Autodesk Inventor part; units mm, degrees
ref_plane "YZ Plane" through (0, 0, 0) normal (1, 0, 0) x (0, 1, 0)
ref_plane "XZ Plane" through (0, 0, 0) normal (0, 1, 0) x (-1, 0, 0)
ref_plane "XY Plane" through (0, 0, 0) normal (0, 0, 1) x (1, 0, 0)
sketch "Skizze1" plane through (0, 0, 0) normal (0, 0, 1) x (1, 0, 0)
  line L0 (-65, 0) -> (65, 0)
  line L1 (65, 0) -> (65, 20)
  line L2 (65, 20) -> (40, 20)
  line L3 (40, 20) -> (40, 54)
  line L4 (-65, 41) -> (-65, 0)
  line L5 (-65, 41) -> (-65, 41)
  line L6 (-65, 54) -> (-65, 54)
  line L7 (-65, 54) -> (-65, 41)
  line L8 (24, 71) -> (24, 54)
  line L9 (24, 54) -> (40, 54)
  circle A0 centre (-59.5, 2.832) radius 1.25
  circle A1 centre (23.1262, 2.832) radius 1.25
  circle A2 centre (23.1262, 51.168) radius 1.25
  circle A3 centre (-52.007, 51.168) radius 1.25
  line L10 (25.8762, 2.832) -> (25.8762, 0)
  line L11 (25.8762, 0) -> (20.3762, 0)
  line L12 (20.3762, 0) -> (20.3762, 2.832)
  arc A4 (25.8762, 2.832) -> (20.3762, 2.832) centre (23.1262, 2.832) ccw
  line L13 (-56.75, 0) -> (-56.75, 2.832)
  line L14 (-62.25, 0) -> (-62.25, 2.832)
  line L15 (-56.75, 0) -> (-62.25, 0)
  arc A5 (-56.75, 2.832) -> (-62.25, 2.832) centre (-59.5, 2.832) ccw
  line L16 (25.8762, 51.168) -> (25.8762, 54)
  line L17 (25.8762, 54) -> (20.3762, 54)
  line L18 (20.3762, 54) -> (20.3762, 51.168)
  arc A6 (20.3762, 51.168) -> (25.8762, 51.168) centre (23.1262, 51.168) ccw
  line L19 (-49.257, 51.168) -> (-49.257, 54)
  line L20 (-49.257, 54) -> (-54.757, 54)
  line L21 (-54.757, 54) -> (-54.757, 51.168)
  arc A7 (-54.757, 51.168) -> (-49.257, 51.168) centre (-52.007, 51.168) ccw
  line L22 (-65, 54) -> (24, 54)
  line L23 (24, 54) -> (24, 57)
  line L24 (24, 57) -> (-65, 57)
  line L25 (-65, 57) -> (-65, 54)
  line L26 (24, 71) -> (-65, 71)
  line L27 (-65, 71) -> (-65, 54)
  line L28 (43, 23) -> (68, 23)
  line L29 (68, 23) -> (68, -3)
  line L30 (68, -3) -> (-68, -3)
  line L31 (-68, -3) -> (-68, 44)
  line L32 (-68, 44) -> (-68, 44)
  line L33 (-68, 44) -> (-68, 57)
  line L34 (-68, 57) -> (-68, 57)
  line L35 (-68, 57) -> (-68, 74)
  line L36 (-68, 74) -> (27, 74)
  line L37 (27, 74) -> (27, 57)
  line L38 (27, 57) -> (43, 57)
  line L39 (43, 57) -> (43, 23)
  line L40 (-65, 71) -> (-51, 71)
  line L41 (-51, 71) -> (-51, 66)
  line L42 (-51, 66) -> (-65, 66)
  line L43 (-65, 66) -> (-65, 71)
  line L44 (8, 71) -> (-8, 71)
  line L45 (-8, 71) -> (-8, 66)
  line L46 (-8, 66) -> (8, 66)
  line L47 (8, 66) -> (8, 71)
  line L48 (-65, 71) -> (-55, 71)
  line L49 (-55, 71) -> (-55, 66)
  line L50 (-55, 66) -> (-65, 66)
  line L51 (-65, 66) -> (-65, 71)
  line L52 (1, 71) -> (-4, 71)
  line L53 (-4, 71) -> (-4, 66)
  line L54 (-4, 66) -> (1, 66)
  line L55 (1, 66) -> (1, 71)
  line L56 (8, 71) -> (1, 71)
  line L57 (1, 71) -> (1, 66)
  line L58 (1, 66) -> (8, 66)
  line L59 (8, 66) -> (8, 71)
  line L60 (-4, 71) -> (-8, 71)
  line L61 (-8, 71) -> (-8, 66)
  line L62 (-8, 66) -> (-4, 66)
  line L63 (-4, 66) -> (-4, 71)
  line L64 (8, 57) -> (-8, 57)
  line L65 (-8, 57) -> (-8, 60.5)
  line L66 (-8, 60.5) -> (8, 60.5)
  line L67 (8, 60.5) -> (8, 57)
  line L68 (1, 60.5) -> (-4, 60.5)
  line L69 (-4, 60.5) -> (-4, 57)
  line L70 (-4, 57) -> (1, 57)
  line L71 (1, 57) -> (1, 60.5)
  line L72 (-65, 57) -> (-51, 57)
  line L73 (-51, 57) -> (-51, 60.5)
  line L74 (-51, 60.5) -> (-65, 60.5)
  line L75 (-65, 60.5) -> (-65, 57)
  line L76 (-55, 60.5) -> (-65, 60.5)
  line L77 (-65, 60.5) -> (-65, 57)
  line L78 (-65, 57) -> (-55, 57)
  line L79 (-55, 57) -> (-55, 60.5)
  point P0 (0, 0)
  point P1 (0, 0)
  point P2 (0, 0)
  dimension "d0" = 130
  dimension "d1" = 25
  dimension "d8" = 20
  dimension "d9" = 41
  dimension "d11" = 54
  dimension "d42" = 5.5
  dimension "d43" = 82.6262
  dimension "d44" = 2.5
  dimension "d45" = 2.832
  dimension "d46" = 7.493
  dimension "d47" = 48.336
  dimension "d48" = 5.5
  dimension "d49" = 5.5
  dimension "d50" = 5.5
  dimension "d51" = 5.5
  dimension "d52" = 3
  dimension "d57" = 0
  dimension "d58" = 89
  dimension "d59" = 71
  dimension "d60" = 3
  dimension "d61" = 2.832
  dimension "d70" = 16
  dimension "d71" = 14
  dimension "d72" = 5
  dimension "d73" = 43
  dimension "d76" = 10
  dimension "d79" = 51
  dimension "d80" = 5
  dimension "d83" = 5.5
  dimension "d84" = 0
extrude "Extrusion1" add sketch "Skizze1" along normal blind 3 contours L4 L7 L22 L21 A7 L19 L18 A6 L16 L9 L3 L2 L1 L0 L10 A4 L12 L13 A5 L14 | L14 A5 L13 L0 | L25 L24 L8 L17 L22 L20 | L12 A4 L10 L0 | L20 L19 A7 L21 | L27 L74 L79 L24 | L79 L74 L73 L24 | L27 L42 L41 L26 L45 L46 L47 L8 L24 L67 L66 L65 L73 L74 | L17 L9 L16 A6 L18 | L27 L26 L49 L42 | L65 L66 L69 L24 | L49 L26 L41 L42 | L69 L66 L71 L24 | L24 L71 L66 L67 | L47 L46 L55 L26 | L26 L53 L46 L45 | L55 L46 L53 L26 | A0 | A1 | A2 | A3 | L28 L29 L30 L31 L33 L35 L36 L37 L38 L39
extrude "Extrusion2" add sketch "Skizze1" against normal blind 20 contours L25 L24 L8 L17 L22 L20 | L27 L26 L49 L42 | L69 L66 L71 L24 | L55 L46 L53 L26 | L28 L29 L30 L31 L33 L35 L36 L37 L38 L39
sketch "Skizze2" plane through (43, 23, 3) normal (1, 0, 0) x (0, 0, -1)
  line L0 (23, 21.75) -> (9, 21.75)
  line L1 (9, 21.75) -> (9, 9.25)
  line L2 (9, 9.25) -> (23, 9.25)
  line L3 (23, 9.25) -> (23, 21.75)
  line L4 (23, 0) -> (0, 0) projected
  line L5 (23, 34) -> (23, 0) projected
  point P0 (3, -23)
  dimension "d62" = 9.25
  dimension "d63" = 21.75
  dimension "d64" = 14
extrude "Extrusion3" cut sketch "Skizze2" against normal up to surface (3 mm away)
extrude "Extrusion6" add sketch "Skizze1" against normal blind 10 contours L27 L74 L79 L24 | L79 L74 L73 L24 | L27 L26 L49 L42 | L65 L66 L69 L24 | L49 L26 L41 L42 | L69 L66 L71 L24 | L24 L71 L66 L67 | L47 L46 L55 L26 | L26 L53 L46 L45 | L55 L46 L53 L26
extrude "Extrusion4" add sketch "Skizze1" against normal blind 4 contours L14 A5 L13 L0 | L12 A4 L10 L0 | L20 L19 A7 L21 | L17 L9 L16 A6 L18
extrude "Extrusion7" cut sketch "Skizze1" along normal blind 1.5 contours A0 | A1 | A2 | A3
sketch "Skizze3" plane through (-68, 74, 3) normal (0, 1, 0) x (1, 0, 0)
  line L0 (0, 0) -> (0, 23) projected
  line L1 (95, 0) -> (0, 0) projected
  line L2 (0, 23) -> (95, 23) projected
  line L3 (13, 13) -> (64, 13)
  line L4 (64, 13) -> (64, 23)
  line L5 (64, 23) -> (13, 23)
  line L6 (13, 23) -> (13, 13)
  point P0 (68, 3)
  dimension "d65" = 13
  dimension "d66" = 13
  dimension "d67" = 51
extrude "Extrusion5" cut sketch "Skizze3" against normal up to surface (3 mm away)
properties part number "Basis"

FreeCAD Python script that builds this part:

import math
import FreeCAD as App
import Part
import Sketcher
Q = App.Units.Quantity

doc = App.newDocument("Part")
body = doc.addObject("PartDesign::Body", "Body")

# Sketch on XY plane
sketch1 = body.newObject("Sketcher::SketchObject", "Sketch")
sketch1.AttachmentSupport = (doc.getObject("XY_Plane"), [""])
sketch1.MapMode = "FlatFace"
sketch1.addGeometry([
    Part.LineSegment(App.Vector(68, 23, 0), App.Vector(43, 23, 0)),  # 0
    Part.LineSegment(App.Vector(43, 23, 0), App.Vector(43, 57, 0)),  # 1
    Part.LineSegment(App.Vector(43, 57, 0), App.Vector(27, 57, 0)),  # 2
    Part.LineSegment(App.Vector(27, 57, 0), App.Vector(27, 74, 0)),  # 3
    Part.LineSegment(App.Vector(27, 74, 0), App.Vector(-68, 74, 0)),  # 4
    Part.LineSegment(App.Vector(-68, 74, 0), App.Vector(-68, -3, 0)),  # 5
    Part.LineSegment(App.Vector(-68, -3, 0), App.Vector(68, -3, 0)),  # 6
    Part.LineSegment(App.Vector(68, -3, 0), App.Vector(68, 23, 0)),  # 7
], False)
sketch1.addConstraint([
    Sketcher.Constraint("Coincident", 0, 2, 1, 1),
    Sketcher.Constraint("Coincident", 1, 2, 2, 1),
    Sketcher.Constraint("Coincident", 2, 2, 3, 1),
    Sketcher.Constraint("Coincident", 3, 2, 4, 1),
    Sketcher.Constraint("Coincident", 4, 2, 5, 1),
    Sketcher.Constraint("Coincident", 5, 2, 6, 1),
    Sketcher.Constraint("Coincident", 6, 2, 7, 1),
    Sketcher.Constraint("Coincident", 7, 2, 0, 1),
    Sketcher.Constraint("Horizontal", 0),
    Sketcher.Constraint("Vertical", 1),
    Sketcher.Constraint("Horizontal", 2),
    Sketcher.Constraint("Vertical", 3),
    Sketcher.Constraint("Horizontal", 4),
    Sketcher.Constraint("Vertical", 5),
    Sketcher.Constraint("Horizontal", 6),
    Sketcher.Constraint("Vertical", 7),
    Sketcher.Constraint("DistanceX", 0, 2, 0, 1, Q("25 mm")),
    Sketcher.Constraint("DistanceX", 2, 2, 2, 1, Q("16 mm")),
    Sketcher.Constraint("DistanceX", -1, 1, 0, 2, Q("43 mm")),
    Sketcher.Constraint("DistanceY", 5, 2, -1, 1, Q("3 mm")),
    Sketcher.Constraint("DistanceY", 0, 2, 3, 2, Q("51 mm")),
    Sketcher.Constraint("DistanceX", 4, 2, 4, 1, Q("95 mm")),
    Sketcher.Constraint("DistanceY", 1, 1, 1, 2, Q("34 mm")),
    Sketcher.Constraint("DistanceY", 5, 2, 5, 1, Q("77 mm")),
])
pad1 = body.newObject("PartDesign::Pad", "Pad")
pad1.Profile = sketch1
pad1.Length = 3

# Sketch on XY plane
sketch2 = body.newObject("Sketcher::SketchObject", "Sketch001")
sketch2.AttachmentSupport = (doc.getObject("XY_Plane"), [""])
sketch2.MapMode = "FlatFace"
sketch2.addGeometry([
    Part.LineSegment(App.Vector(68, 23, 0), App.Vector(43, 23, 0)),  # 0
    Part.LineSegment(App.Vector(43, 23, 0), App.Vector(43, 57, 0)),  # 1
    Part.LineSegment(App.Vector(43, 57, 0), App.Vector(27, 57, 0)),  # 2
    Part.LineSegment(App.Vector(27, 57, 0), App.Vector(27, 74, 0)),  # 3
    Part.LineSegment(App.Vector(27, 74, 0), App.Vector(-68, 74, 0)),  # 4
    Part.LineSegment(App.Vector(-68, 74, 0), App.Vector(-68, -3, 0)),  # 5
    Part.LineSegment(App.Vector(-68, -3, 0), App.Vector(68, -3, 0)),  # 6
    Part.LineSegment(App.Vector(68, -3, 0), App.Vector(68, 23, 0)),  # 7
    Part.LineSegment(App.Vector(-65, 57, 0), App.Vector(-65, 66, 0)),  # 8
    Part.LineSegment(App.Vector(-65, 66, 0), App.Vector(-55, 66, 0)),  # 9
    Part.LineSegment(App.Vector(-55, 66, 0), App.Vector(-55, 71, 0)),  # 10
    Part.LineSegment(App.Vector(-55, 71, 0), App.Vector(-4, 71, 0)),  # 11
    Part.LineSegment(App.Vector(-4, 71, 0), App.Vector(-4, 66, 0)),  # 12
    Part.LineSegment(App.Vector(-4, 66, 0), App.Vector(1, 66, 0)),  # 13
    Part.LineSegment(App.Vector(1, 66, 0), App.Vector(1, 71, 0)),  # 14
    Part.LineSegment(App.Vector(1, 71, 0), App.Vector(24, 71, 0)),  # 15
    Part.LineSegment(App.Vector(24, 71, 0), App.Vector(24, 57, 0)),  # 16
    Part.LineSegment(App.Vector(24, 57, 0), App.Vector(1, 57, 0)),  # 17
    Part.LineSegment(App.Vector(1, 57, 0), App.Vector(1, 60.5, 0)),  # 18
    Part.LineSegment(App.Vector(1, 60.5, 0), App.Vector(-4, 60.5, 0)),  # 19
    Part.LineSegment(App.Vector(-4, 60.5, 0), App.Vector(-4, 57, 0)),  # 20
    Part.LineSegment(App.Vector(-4, 57, 0), App.Vector(-65, 57, 0)),  # 21
    Part.LineSegment(App.Vector(40, 54, 0), App.Vector(40, 20, 0)),  # 22
    Part.LineSegment(App.Vector(40, 20, 0), App.Vector(65, 20, 0)),  # 23
    Part.LineSegment(App.Vector(65, 20, 0), App.Vector(65, 0, 0)),  # 24
    Part.LineSegment(App.Vector(65, 0, 0), App.Vector(-65, 0, 0)),  # 25
    Part.LineSegment(App.Vector(-65, 0, 0), App.Vector(-65, 54, 0)),  # 26
    Part.LineSegment(App.Vector(-65, 54, 0), App.Vector(40, 54, 0)),  # 27
], False)
sketch2.addConstraint([
    Sketcher.Constraint("Coincident", 0, 2, 1, 1),
    Sketcher.Constraint("Coincident", 1, 2, 2, 1),
    Sketcher.Constraint("Coincident", 2, 2, 3, 1),
    Sketcher.Constraint("Coincident", 3, 2, 4, 1),
    Sketcher.Constraint("Coincident", 4, 2, 5, 1),
    Sketcher.Constraint("Coincident", 5, 2, 6, 1),
    Sketcher.Constraint("Coincident", 6, 2, 7, 1),
    Sketcher.Constraint("Coincident", 7, 2, 0, 1),
    Sketcher.Constraint("Coincident", 8, 2, 9, 1),
    Sketcher.Constraint("Coincident", 9, 2, 10, 1),
    Sketcher.Constraint("Coincident", 10, 2, 11, 1),
    Sketcher.Constraint("Coincident", 11, 2, 12, 1),
    Sketcher.Constraint("Coincident", 12, 2, 13, 1),
    Sketcher.Constraint("Coincident", 13, 2, 14, 1),
    Sketcher.Constraint("Coincident", 14, 2, 15, 1),
    Sketcher.Constraint("Coincident", 15, 2, 16, 1),
    Sketcher.Constraint("Coincident", 16, 2, 17, 1),
    Sketcher.Constraint("Coincident", 17, 2, 18, 1),
    Sketcher.Constraint("Coincident", 18, 2, 19, 1),
    Sketcher.Constraint("Coincident", 19, 2, 20, 1),
    Sketcher.Constraint("Coincident", 20, 2, 21, 1),
    Sketcher.Constraint("Coincident", 21, 2, 8, 1),
    Sketcher.Constraint("Coincident", 22, 2, 23, 1),
    Sketcher.Constraint("Coincident", 23, 2, 24, 1),
    Sketcher.Constraint("Coincident", 24, 2, 25, 1),
    Sketcher.Constraint("Coincident", 25, 2, 26, 1),
    Sketcher.Constraint("Coincident", 26, 2, 27, 1),
    Sketcher.Constraint("Coincident", 27, 2, 22, 1),
    Sketcher.Constraint("Horizontal", 0),
    Sketcher.Constraint("Vertical", 1),
    Sketcher.Constraint("Horizontal", 2),
    Sketcher.Constraint("Vertical", 3),
    Sketcher.Constraint("Horizontal", 4),
    Sketcher.Constraint("Vertical", 5),
    Sketcher.Constraint("Horizontal", 6),
    Sketcher.Constraint("Vertical", 7),
    Sketcher.Constraint("Vertical", 8),
    Sketcher.Constraint("Horizontal", 9),
    Sketcher.Constraint("Vertical", 10),
    Sketcher.Constraint("Horizontal", 11),
    Sketcher.Constraint("Vertical", 12),
    Sketcher.Constraint("Horizontal", 13),
    Sketcher.Constraint("Vertical", 14),
    Sketcher.Constraint("Horizontal", 15),
    Sketcher.Constraint("Vertical", 16),
    Sketcher.Constraint("Horizontal", 17),
    Sketcher.Constraint("Vertical", 18),
    Sketcher.Constraint("Horizontal", 19),
    Sketcher.Constraint("Vertical", 20),
    Sketcher.Constraint("Horizontal", 21),
    Sketcher.Constraint("Vertical", 22),
    Sketcher.Constraint("Horizontal", 23),
    Sketcher.Constraint("Vertical", 24),
    Sketcher.Constraint("Horizontal", 25),
    Sketcher.Constraint("Vertical", 26),
    Sketcher.Constraint("Horizontal", 27),
    Sketcher.Constraint("Symmetric", 24, 2, 25, 2, -1, 1),
    Sketcher.Constraint("Horizontal", 9, 2, 12, 2),
    Sketcher.Constraint("Horizontal", 11, 2, 14, 2),
    Sketcher.Constraint("Horizontal", 2, 2, 16, 2),
    Sketcher.Constraint("Horizontal", 17, 2, 20, 2),
    Sketcher.Constraint("Vertical", 14, 2, 17, 2),
    Sketcher.Constraint("Vertical", 12, 2, 19, 2),
    Sketcher.Constraint("Vertical", 21, 2, 25, 2),
    Sketcher.Constraint("Equal", 0, 23),
    Sketcher.Constraint("Equal", 19, 10),
    Sketcher.Constraint("Equal", 1, 22),
    Sketcher.Constraint("DistanceX", 0, 2, 0, 1, Q("25 mm")),
    Sketcher.Constraint("DistanceX", 2, 2, 2, 1, Q("16 mm")),
    Sketcher.Constraint("DistanceX", 9, 1, 9, 2, Q("10 mm")),
    Sketcher.Constraint("DistanceX", 11, 1, 11, 2, Q("51 mm")),
    Sketcher.Constraint("DistanceX", 13, 1, 13, 2, Q("5 mm")),
    Sketcher.Constraint("DistanceX", 25, 2, 25, 1, Q("130 mm")),
    Sketcher.Constraint("DistanceY", 16, 2, 16, 1, Q("14 mm")),
    Sketcher.Constraint("DistanceY", 24, 2, 24, 1, Q("20 mm")),
    Sketcher.Constraint("DistanceY", 26, 1, 26, 2, Q("54 mm")),
    Sketcher.Constraint("DistanceX", -1, 1, 0, 2, Q("43 mm")),
    Sketcher.Constraint("DistanceY", 5, 2, -1, 1, Q("3 mm")),
    Sketcher.Constraint("DistanceY", -1, 1, 10, 2, Q("71 mm")),
    Sketcher.Constraint("DistanceY", 0, 2, 3, 2, Q("51 mm")),
    Sketcher.Constraint("DistanceX", 4, 2, 8, 2, Q("3 mm")),
    Sketcher.Constraint("DistanceX", 15, 2, 3, 2, Q("3 mm")),
    Sketcher.Constraint("DistanceY", 18, 2, 13, 2, Q("5.5 mm")),
])
pad2 = body.newObject("PartDesign::Pad", "Pad001")
pad2.Profile = sketch2
pad2.Length = 20
pad2.Reversed = True

# Sketch on YZ plane
sketch3 = body.newObject("Sketcher::SketchObject", "Sketch002")
sketch3.AttachmentSupport = (doc.getObject("YZ_Plane"), [""])
sketch3.MapMode = "FlatFace"
sketch3.AttachmentOffset = App.Placement(App.Vector(0, 0, 43), App.Rotation())
sketch3.addGeometry([
    Part.LineSegment(App.Vector(32, -20, 0), App.Vector(45, -20, 0)),
    Part.LineSegment(App.Vector(45, -20, 0), App.Vector(45, -6, 0)),
    Part.LineSegment(App.Vector(45, -6, 0), App.Vector(32, -6, 0)),
    Part.LineSegment(App.Vector(32, -6, 0), App.Vector(32, -20, 0)),
], False)
sketch3.addConstraint([
    Sketcher.Constraint("Coincident", 0, 2, 1, 1),
    Sketcher.Constraint("Coincident", 1, 2, 2, 1),
    Sketcher.Constraint("Coincident", 2, 2, 3, 1),
    Sketcher.Constraint("Coincident", 3, 2, 0, 1),
    Sketcher.Constraint("Horizontal", 0),
    Sketcher.Constraint("Vertical", 1),
    Sketcher.Constraint("Horizontal", 2),
    Sketcher.Constraint("Vertical", 3),
    Sketcher.Constraint("DistanceY", 1, 1, 1, 2, Q("14 mm")),
    Sketcher.Constraint("DistanceX", 0, 1, 0, 2, Q("12.5 mm")),
    Sketcher.Constraint("DistanceY", 0, 2, -1, 1, Q("20 mm")),
    Sketcher.Constraint("DistanceX", -1, 1, 0, 2, Q("44.75 mm")),
])
pocket1 = body.newObject("PartDesign::Pocket", "Pocket")
pocket1.Profile = sketch3
pocket1.Length = 3

# Sketch on XY plane
sketch4 = body.newObject("Sketcher::SketchObject", "Sketch003")
sketch4.AttachmentSupport = (doc.getObject("XY_Plane"), [""])
sketch4.MapMode = "FlatFace"
sketch4.addGeometry([
    Part.LineSegment(App.Vector(-65, 60.5, 0), App.Vector(-65, 57, 0)),  # 0
    Part.LineSegment(App.Vector(-65, 57, 0), App.Vector(-51, 57, 0)),  # 1
    Part.LineSegment(App.Vector(-51, 57, 0), App.Vector(-51, 60.5, 0)),  # 2
    Part.LineSegment(App.Vector(-51, 60.5, 0), App.Vector(-65, 60.5, 0)),  # 3
    Part.LineSegment(App.Vector(-65, 71, 0), App.Vector(-65, 66, 0)),  # 4
    Part.LineSegment(App.Vector(-65, 66, 0), App.Vector(-51, 66, 0)),  # 5
    Part.LineSegment(App.Vector(-51, 66, 0), App.Vector(-51, 71, 0)),  # 6
    Part.LineSegment(App.Vector(-51, 71, 0), App.Vector(-65, 71, 0)),  # 7
    Part.LineSegment(App.Vector(-8, 60.5, 0), App.Vector(-8, 57, 0)),  # 8
    Part.LineSegment(App.Vector(-8, 57, 0), App.Vector(8, 57, 0)),  # 9
    Part.LineSegment(App.Vector(8, 57, 0), App.Vector(8, 60.5, 0)),  # 10
    Part.LineSegment(App.Vector(8, 60.5, 0), App.Vector(-8, 60.5, 0)),  # 11
    Part.LineSegment(App.Vector(8, 66, 0), App.Vector(8, 71, 0)),  # 12
    Part.LineSegment(App.Vector(8, 71, 0), App.Vector(-8, 71, 0)),  # 13
    Part.LineSegment(App.Vector(-8, 71, 0), App.Vector(-8, 66, 0)),  # 14
    Part.LineSegment(App.Vector(-8, 66, 0), App.Vector(8, 66, 0)),  # 15
], False)
sketch4.addConstraint([
    Sketcher.Constraint("Coincident", 0, 2, 1, 1),
    Sketcher.Constraint("Coincident", 1, 2, 2, 1),
    Sketcher.Constraint("Coincident", 2, 2, 3, 1),
    Sketcher.Constraint("Coincident", 3, 2, 0, 1),
    Sketcher.Constraint("Coincident", 4, 2, 5, 1),
    Sketcher.Constraint("Coincident", 5, 2, 6, 1),
    Sketcher.Constraint("Coincident", 6, 2, 7, 1),
    Sketcher.Constraint("Coincident", 7, 2, 4, 1),
    Sketcher.Constraint("Coincident", 8, 2, 9, 1),
    Sketcher.Constraint("Coincident", 9, 2, 10, 1),
    Sketcher.Constraint("Coincident", 10, 2, 11, 1),
    Sketcher.Constraint("Coincident", 11, 2, 8, 1),
    Sketcher.Constraint("Coincident", 12, 2, 13, 1),
    Sketcher.Constraint("Coincident", 13, 2, 14, 1),
    Sketcher.Constraint("Coincident", 14, 2, 15, 1),
    Sketcher.Constraint("Coincident", 15, 2, 12, 1),
    Sketcher.Constraint("Vertical", 0),
    Sketcher.Constraint("Horizontal", 1),
    Sketcher.Constraint("Vertical", 2),
    Sketcher.Constraint("Horizontal", 3),
    Sketcher.Constraint("Vertical", 4),
    Sketcher.Constraint("Horizontal", 5),
    Sketcher.Constraint("Vertical", 6),
    Sketcher.Constraint("Horizontal", 7),
    Sketcher.Constraint("Vertical", 8),
    Sketcher.Constraint("Horizontal", 9),
    Sketcher.Constraint("Vertical", 10),
    Sketcher.Constraint("Horizontal", 11),
    Sketcher.Constraint("Vertical", 12),
    Sketcher.Constraint("Horizontal", 13),
    Sketcher.Constraint("Vertical", 14),
    Sketcher.Constraint("Horizontal", 15),
    Sketcher.Constraint("Horizontal", 1, 2, 8, 2),
    Sketcher.Constraint("Horizontal", 3, 2, 10, 2),
    Sketcher.Constraint("Horizontal", 7, 2, 12, 2),
    Sketcher.Constraint("Horizontal", 5, 2, 14, 2),
    Sketcher.Constraint("Vertical", 3, 2, 4, 2),
    Sketcher.Constraint("Vertical", 2, 2, 5, 2),
    Sketcher.Constraint("Vertical", 10, 2, 12, 2),
    Sketcher.Constraint("Vertical", 11, 2, 13, 2),
    Sketcher.Constraint("DistanceX", 1, 1, 1, 2, Q("14 mm")),
    Sketcher.Constraint("DistanceX", 9, 1, 9, 2, Q("16 mm")),
    Sketcher.Constraint("DistanceY", 4, 2, 4, 1, Q("5 mm")),
    Sketcher.Constraint("DistanceX", 1, 2, -1, 1, Q("51 mm")),
    Sketcher.Constraint("DistanceY", -1, 1, 6, 2, Q("71 mm")),
    Sketcher.Constraint("DistanceY", 1, 2, 6, 2, Q("14 mm")),
    Sketcher.Constraint("DistanceX", 1, 2, 8, 2, Q("43 mm")),
    Sketcher.Constraint("DistanceY", 3, 2, 4, 2, Q("5.5 mm")),
])
pad3 = body.newObject("PartDesign::Pad", "Pad002")
pad3.Profile = sketch4
pad3.Length = 10
pad3.Reversed = True

# Sketch on XY plane
sketch5 = body.newObject("Sketcher::SketchObject", "Sketch004")
sketch5.AttachmentSupport = (doc.getObject("XY_Plane"), [""])
sketch5.MapMode = "FlatFace"
sketch5.addGeometry([
    Part.LineSegment(App.Vector(-62.2, 2.8, 0), App.Vector(-62.2, 0, 0)),  # 0
    Part.LineSegment(App.Vector(-62.2, 0, 0), App.Vector(-56.8, 0, 0)),  # 1
    Part.LineSegment(App.Vector(-56.8, 0, 0), App.Vector(-56.8, 2.8, 0)),  # 2
    Part.ArcOfCircle(Part.Circle(App.Vector(-59.5, 2.8, 0), App.Vector(0, 0, 1), 2.8), math.radians(0), math.radians(180)),  # 3
    Part.Circle(App.Vector(-59.5, 2.8, 0), App.Vector(0, 0, 1), 1.2),  # 4
    Part.LineSegment(App.Vector(20.4, 2.8, 0), App.Vector(20.4, 0, 0)),  # 5
    Part.LineSegment(App.Vector(20.4, 0, 0), App.Vector(25.9, 0, 0)),  # 6
    Part.LineSegment(App.Vector(25.9, 0, 0), App.Vector(25.9, 2.8, 0)),  # 7
    Part.ArcOfCircle(Part.Circle(App.Vector(23.1, 2.8, 0), App.Vector(0, 0, 1), 2.8), math.radians(0), math.radians(180)),  # 8
    Part.Circle(App.Vector(23.1, 2.8, 0), App.Vector(0, 0, 1), 1.2),  # 9
    Part.LineSegment(App.Vector(-49.3, 54, 0), App.Vector(-54.8, 54, 0)),  # 10
    Part.LineSegment(App.Vector(-54.8, 54, 0), App.Vector(-54.8, 51.2, 0)),  # 11
    Part.ArcOfCircle(Part.Circle(App.Vector(-52, 51.2, 0), App.Vector(0, 0, 1), 2.8), math.radians(180), math.radians(360)),  # 12
    Part.LineSegment(App.Vector(-49.3, 51.2, 0), App.Vector(-49.3, 54, 0)),  # 13
    Part.Circle(App.Vector(-52, 51.2, 0), App.Vector(0, 0, 1), 1.2),  # 14
    Part.LineSegment(App.Vector(25.9, 54, 0), App.Vector(20.4, 54, 0)),  # 15
    Part.LineSegment(App.Vector(20.4, 54, 0), App.Vector(20.4, 51.2, 0)),  # 16
    Part.ArcOfCircle(Part.Circle(App.Vector(23.1, 51.2, 0), App.Vector(0, 0, 1), 2.8), math.radians(180), math.radians(360)),  # 17
    Part.LineSegment(App.Vector(25.9, 51.2, 0), App.Vector(25.9, 54, 0)),  # 18
    Part.Circle(App.Vector(23.1, 51.2, 0), App.Vector(0, 0, 1), 1.2),  # 19
], False)
sketch5.addConstraint([
    Sketcher.Constraint("Coincident", 0, 2, 1, 1),
    Sketcher.Constraint("Coincident", 1, 2, 2, 1),
    Sketcher.Constraint("Tangent", 2, 2, 3, 1),
    Sketcher.Constraint("Tangent", 3, 2, 0, 1),
    Sketcher.Constraint("Coincident", 5, 2, 6, 1),
    Sketcher.Constraint("Coincident", 6, 2, 7, 1),
    Sketcher.Constraint("Tangent", 7, 2, 8, 1),
    Sketcher.Constraint("Tangent", 8, 2, 5, 1),
    Sketcher.Constraint("Coincident", 10, 2, 11, 1),
    Sketcher.Constraint("Tangent", 11, 2, 12, 1),
    Sketcher.Constraint("Tangent", 12, 2, 13, 1),
    Sketcher.Constraint("Coincident", 13, 2, 10, 1),
    Sketcher.Constraint("Coincident", 15, 2, 16, 1),
    Sketcher.Constraint("Tangent", 16, 2, 17, 1),
    Sketcher.Constraint("Tangent", 17, 2, 18, 1),
    Sketcher.Constraint("Coincident", 18, 2, 15, 1),
    Sketcher.Constraint("Vertical", 0),
    Sketcher.Constraint("Horizontal", 1),
    Sketcher.Constraint("Vertical", 2),
    Sketcher.Constraint("Vertical", 5),
    Sketcher.Constraint("Horizontal", 6),
    Sketcher.Constraint("Vertical", 7),
    Sketcher.Constraint("Horizontal", 10),
    Sketcher.Constraint("Vertical", 11),
    Sketcher.Constraint("Vertical", 13),
    Sketcher.Constraint("Horizontal", 15),
    Sketcher.Constraint("Vertical", 16),
    Sketcher.Constraint("Vertical", 18),
    Sketcher.Constraint("Coincident", 4, 3, 3, 3),
    Sketcher.Constraint("Coincident", 9, 3, 8, 3),
    Sketcher.Constraint("Coincident", 14, 3, 12, 3),
    Sketcher.Constraint("Coincident", 19, 3, 17, 3),
    Sketcher.Constraint("Equal", 3, 8),
    Sketcher.Constraint("Equal", 4, 9),
    Sketcher.Constraint("Equal", 8, 12),
    Sketcher.Constraint("Equal", 9, 14),
    Sketcher.Constraint("Equal", 12, 17),
    Sketcher.Constraint("Equal", 14, 19),
    Sketcher.Constraint("PointOnObject", 0, 2, -1),
    Sketcher.Constraint("PointOnObject", 5, 2, -1),
    Sketcher.Constraint("Horizontal", 4, 3, 8, 3),
    Sketcher.Constraint("Horizontal", 14, 3, 17, 3),
    Sketcher.Constraint("Horizontal", 13, 2, 15, 2),
    Sketcher.Constraint("Vertical", 9, 3, 17, 3),
    Sketcher.Constraint("Equal", 7, 11),
    Sketcher.Constraint("Diameter", 4, Q("2.5 mm")),
    Sketcher.Constraint("Radius", 3, Q("2.75 mm")),
    Sketcher.Constraint("DistanceY", -1, 1, 10, 2, Q("54 mm")),
    Sketcher.Constraint("DistanceY", 0, 2, 0, 1, Q("2.832 mm")),
    Sketcher.Constraint("DistanceX", 3, 3, 12, 3, Q("7.493 mm")),
    Sketcher.Constraint("DistanceX", 3, 3, -1, 1, Q("59.5 mm")),
    Sketcher.Constraint("DistanceX", 3, 3, 8, 3, Q("82.6262 mm")),
])
pad4 = body.newObject("PartDesign::Pad", "Pad003")
pad4.Profile = sketch5
pad4.Length = 4
pad4.Reversed = True

# Sketch on XY plane
sketch6 = body.newObject("Sketcher::SketchObject", "Sketch005")
sketch6.AttachmentSupport = (doc.getObject("XY_Plane"), [""])
sketch6.MapMode = "FlatFace"
sketch6.addGeometry([
    Part.Circle(App.Vector(-59.5, 2.8, 0), App.Vector(0, 0, 1), 1.2),
    Part.Circle(App.Vector(23.1, 2.8, 0), App.Vector(0, 0, 1), 1.2),
    Part.Circle(App.Vector(23.1, 51.2, 0), App.Vector(0, 0, 1), 1.2),
    Part.Circle(App.Vector(-52, 51.2, 0), App.Vector(0, 0, 1), 1.2),
], False)
sketch6.addConstraint([
    Sketcher.Constraint("Equal", 0, 1),
    Sketcher.Constraint("Equal", 1, 2),
    Sketcher.Constraint("Equal", 2, 3),
    Sketcher.Constraint("Horizontal", 0, 3, 1, 3),
    Sketcher.Constraint("Horizontal", 2, 3, 3, 3),
    Sketcher.Constraint("Vertical", 1, 3, 2, 3),
    Sketcher.Constraint("Diameter", 0, Q("2.5 mm")),
    Sketcher.Constraint("DistanceY", -1, 1, 0, 3, Q("2.832 mm")),
    Sketcher.Constraint("DistanceY", 1, 3, 2, 3, Q("48.336 mm")),
    Sketcher.Constraint("DistanceX", 0, 3, 3, 3, Q("7.493 mm")),
    Sketcher.Constraint("DistanceX", 0, 3, -1, 1, Q("59.5 mm")),
    Sketcher.Constraint("DistanceX", 0, 3, 1, 3, Q("82.6262 mm")),
])
pocket2 = body.newObject("PartDesign::Pocket", "Pocket001")
pocket2.Profile = sketch6
pocket2.Length = 1.5
pocket2.Reversed = True

# Sketch on XZ plane
sketch7 = body.newObject("Sketcher::SketchObject", "Sketch006")
sketch7.AttachmentSupport = (doc.getObject("XZ_Plane"), [""])
sketch7.MapMode = "FlatFace"
sketch7.AttachmentOffset = App.Placement(App.Vector(0, 0, -74), App.Rotation())
sketch7.addGeometry([
    Part.LineSegment(App.Vector(-4, -20, 0), App.Vector(-55, -20, 0)),
    Part.LineSegment(App.Vector(-55, -20, 0), App.Vector(-55, -10, 0)),
    Part.LineSegment(App.Vector(-55, -10, 0), App.Vector(-4, -10, 0)),
    Part.LineSegment(App.Vector(-4, -10, 0), App.Vector(-4, -20, 0)),
], False)
sketch7.addConstraint([
    Sketcher.Constraint("Coincident", 0, 2, 1, 1),
    Sketcher.Constraint("Coincident", 1, 2, 2, 1),
    Sketcher.Constraint("Coincident", 2, 2, 3, 1),
    Sketcher.Constraint("Coincident", 3, 2, 0, 1),
    Sketcher.Constraint("Horizontal", 0),
    Sketcher.Constraint("Vertical", 1),
    Sketcher.Constraint("Horizontal", 2),
    Sketcher.Constraint("Vertical", 3),
    Sketcher.Constraint("DistanceX", 0, 2, 0, 1, Q("51 mm")),
    Sketcher.Constraint("DistanceY", 1, 1, 1, 2, Q("10 mm")),
    Sketcher.Constraint("DistanceX", 0, 2, -1, 1, Q("55 mm")),
    Sketcher.Constraint("DistanceY", 0, 2, -1, 1, Q("20 mm")),
])
pocket3 = body.newObject("PartDesign::Pocket", "Pocket002")
pocket3.Profile = sketch7
pocket3.Length = 3
pocket3.Reversed = True

doc.recompute()
